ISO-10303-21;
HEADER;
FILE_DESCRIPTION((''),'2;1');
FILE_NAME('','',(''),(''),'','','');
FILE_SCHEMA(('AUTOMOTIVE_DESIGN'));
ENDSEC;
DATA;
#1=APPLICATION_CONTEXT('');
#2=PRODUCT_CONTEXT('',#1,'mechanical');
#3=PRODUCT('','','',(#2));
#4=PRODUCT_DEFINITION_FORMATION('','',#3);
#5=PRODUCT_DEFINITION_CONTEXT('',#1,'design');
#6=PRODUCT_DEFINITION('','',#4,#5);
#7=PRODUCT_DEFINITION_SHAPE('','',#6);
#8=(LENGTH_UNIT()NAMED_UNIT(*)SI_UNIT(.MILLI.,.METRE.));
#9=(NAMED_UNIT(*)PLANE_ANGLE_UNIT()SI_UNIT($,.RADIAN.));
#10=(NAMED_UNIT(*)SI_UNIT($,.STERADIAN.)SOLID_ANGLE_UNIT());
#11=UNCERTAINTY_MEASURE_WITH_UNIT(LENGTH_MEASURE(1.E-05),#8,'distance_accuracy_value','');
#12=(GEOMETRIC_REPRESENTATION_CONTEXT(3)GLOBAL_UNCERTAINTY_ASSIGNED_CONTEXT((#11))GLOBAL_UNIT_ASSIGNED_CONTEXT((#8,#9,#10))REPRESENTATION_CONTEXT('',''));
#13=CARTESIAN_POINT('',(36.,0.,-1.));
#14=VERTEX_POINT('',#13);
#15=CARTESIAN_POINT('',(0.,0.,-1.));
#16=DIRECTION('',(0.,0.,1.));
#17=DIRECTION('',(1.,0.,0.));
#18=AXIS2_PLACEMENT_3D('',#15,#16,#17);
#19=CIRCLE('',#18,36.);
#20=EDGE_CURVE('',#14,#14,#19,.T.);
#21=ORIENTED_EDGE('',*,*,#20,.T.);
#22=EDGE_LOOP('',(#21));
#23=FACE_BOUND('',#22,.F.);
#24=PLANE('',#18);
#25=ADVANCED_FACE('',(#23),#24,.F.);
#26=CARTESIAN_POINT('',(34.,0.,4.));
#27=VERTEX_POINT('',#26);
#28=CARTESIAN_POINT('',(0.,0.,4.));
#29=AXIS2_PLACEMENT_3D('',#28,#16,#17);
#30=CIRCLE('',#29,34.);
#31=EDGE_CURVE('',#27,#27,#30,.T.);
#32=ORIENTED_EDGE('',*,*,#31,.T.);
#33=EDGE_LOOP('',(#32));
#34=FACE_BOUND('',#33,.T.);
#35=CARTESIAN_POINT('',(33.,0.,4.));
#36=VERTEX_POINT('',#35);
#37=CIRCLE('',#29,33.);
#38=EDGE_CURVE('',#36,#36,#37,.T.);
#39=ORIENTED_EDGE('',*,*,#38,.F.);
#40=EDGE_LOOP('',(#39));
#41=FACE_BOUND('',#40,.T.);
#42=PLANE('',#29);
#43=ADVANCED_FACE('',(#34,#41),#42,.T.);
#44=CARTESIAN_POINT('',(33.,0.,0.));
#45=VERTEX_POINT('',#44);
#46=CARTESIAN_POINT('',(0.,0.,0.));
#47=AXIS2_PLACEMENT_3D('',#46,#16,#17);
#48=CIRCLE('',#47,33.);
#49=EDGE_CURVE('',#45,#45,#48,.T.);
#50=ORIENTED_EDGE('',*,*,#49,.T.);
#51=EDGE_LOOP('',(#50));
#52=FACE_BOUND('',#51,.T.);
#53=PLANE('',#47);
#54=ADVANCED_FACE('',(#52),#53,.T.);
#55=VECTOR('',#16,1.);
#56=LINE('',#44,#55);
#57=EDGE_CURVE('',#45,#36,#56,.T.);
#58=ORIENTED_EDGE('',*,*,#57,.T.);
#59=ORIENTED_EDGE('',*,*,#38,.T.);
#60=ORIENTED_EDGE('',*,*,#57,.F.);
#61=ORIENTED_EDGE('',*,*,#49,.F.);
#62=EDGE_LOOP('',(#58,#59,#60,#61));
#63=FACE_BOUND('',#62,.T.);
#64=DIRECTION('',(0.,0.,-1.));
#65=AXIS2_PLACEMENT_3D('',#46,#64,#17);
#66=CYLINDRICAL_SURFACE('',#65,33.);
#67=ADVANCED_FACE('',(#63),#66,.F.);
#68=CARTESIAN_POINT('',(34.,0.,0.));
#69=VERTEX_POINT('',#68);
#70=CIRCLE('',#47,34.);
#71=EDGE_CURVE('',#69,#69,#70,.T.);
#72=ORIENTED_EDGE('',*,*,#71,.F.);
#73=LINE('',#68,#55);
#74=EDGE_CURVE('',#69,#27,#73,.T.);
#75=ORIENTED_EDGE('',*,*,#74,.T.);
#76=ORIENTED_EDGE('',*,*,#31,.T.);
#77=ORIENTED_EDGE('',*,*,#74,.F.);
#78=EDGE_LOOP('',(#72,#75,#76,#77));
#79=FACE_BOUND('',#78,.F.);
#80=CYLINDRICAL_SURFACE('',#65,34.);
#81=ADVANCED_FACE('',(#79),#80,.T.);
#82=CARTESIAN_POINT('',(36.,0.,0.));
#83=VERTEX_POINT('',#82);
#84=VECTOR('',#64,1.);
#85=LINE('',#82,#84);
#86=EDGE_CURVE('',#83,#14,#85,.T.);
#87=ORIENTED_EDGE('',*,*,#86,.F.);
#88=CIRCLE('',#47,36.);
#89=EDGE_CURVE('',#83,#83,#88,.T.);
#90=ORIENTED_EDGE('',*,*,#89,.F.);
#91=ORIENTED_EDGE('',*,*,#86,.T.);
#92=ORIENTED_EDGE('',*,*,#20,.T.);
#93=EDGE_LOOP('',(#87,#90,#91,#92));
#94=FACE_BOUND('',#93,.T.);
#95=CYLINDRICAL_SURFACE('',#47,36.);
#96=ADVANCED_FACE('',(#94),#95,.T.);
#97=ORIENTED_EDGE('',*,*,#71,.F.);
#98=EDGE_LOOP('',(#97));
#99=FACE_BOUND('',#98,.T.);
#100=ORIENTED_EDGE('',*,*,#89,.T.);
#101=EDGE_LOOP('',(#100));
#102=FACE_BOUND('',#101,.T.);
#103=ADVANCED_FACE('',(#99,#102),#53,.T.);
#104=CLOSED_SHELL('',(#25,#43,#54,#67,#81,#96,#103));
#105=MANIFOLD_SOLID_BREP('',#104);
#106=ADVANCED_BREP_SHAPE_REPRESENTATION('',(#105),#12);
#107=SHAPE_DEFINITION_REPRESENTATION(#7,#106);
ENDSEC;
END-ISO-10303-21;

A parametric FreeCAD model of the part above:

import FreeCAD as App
import Part
import Sketcher
from FreeCAD import Vector

doc = App.newDocument("Part")
body = doc.addObject("PartDesign::Body", "Body")

sketch1 = body.newObject("Sketcher::SketchObject", "Sketch")
sketch1.AttachmentSupport = (doc.getObject("XY_Plane"), [""])
sketch1.MapMode = "FlatFace"
sketch1.addGeometry([
    Part.Circle(Vector(0, 0, 0), Vector(0, 0, 1), 34),
    Part.Circle(Vector(0, 0, 0), Vector(0, 0, 1), 33),
], False)
sketch1.addConstraint([
    Sketcher.Constraint("Coincident", 0, 3, -1, 1),
    Sketcher.Constraint("Coincident", 1, 3, -1, 1),
    Sketcher.Constraint("Diameter", 0, 68.0),
    Sketcher.Constraint("Diameter", 1, 66.0),
])
pad1 = body.newObject("PartDesign::Pad", "Pad")
pad1.Profile = sketch1
pad1.Length = 4

sketch2 = body.newObject("Sketcher::SketchObject", "Sketch001")
sketch2.AttachmentSupport = (doc.getObject("XY_Plane"), [""])
sketch2.MapMode = "FlatFace"
sketch2.addGeometry(Part.Circle(Vector(0, 0, 0), Vector(0, 0, 1), 36), False)
sketch2.addConstraint([
    Sketcher.Constraint("Coincident", 0, 3, -1, 1),
    Sketcher.Constraint("Diameter", 0, 72.0),
])
pad2 = body.newObject("PartDesign::Pad", "Pad001")
pad2.Profile = sketch2
pad2.Length = 1
pad2.Reversed = True

doc.recompute()
